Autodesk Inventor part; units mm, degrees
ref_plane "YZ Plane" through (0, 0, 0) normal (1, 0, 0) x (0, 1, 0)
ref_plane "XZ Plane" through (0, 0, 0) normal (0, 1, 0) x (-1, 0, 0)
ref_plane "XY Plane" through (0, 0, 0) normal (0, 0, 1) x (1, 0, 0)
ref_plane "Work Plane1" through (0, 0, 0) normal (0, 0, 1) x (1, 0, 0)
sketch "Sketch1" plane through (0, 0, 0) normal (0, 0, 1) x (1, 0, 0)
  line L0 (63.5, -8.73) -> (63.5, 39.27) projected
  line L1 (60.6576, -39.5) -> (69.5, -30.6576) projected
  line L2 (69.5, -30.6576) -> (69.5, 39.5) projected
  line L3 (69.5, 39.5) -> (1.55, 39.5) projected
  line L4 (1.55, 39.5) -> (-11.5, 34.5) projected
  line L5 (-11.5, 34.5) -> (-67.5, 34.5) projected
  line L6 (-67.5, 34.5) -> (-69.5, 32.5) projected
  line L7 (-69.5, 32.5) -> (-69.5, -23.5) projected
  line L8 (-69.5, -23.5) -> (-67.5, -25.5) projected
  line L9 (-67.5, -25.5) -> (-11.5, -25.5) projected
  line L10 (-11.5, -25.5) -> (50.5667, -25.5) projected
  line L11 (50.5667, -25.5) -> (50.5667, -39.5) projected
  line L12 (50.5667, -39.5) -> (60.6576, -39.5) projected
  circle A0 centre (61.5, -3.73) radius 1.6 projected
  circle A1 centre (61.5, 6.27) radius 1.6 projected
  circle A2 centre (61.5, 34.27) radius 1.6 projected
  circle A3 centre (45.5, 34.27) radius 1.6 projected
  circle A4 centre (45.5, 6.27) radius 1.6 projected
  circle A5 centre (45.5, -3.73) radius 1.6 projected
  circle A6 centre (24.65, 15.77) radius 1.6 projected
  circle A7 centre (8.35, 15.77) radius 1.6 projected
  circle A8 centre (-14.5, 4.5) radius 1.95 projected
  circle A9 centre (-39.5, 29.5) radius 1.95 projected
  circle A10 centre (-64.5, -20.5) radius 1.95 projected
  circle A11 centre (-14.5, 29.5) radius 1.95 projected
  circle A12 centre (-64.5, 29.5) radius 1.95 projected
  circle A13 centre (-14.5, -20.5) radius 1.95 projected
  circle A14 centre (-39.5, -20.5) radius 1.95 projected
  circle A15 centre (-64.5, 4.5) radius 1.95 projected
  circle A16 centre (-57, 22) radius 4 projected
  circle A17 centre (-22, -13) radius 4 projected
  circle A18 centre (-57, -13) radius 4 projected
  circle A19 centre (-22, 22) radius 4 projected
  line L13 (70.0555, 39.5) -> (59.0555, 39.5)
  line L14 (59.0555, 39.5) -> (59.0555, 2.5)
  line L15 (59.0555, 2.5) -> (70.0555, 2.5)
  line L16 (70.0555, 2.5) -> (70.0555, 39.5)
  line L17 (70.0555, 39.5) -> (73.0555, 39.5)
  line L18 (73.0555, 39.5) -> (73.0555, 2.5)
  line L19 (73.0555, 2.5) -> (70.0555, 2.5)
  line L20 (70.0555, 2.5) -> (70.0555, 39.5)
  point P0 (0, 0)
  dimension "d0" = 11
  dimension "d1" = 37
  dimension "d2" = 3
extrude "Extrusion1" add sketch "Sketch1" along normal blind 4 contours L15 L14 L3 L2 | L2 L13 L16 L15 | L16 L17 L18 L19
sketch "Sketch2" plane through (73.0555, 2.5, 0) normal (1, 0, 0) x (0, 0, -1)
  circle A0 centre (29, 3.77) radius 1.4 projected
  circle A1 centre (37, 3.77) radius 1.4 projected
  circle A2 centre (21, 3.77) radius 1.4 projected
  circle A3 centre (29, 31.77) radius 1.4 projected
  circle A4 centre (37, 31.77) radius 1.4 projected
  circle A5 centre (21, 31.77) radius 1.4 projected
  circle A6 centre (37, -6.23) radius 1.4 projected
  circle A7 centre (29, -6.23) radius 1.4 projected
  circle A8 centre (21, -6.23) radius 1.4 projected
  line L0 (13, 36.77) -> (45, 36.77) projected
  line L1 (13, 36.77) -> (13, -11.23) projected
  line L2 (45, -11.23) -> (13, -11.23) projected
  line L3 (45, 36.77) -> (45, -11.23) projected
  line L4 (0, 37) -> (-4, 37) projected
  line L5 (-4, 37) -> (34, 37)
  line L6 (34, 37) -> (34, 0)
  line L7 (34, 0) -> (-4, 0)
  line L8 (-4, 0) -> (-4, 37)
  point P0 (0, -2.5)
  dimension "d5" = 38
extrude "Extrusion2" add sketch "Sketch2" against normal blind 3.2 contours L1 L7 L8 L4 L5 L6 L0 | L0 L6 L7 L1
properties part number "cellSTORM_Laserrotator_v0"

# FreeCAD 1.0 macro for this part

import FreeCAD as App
import Part
import Sketcher

V = App.Vector


def add_polygon(sketch, points):
    """Adds a closed chain of lines whose ends are joined by coincident constraints."""
    first, n = sketch.GeometryCount, len(points)
    for a, b in zip(points, points[1:] + points[:1]):
        sketch.addGeometry(Part.LineSegment(App.Vector(*a, 0), App.Vector(*b, 0)), False)
    for i in range(n):
        sketch.addConstraint(Sketcher.Constraint("Coincident", first + i, 2, first + (i + 1) % n, 1))

doc = App.newDocument("Part")
body = doc.addObject("PartDesign::Body", "Body")

# Sketch on XY plane
sketch1 = body.newObject("Sketcher::SketchObject", "Sketch")
sketch1.AttachmentSupport = (doc.getObject("XY_Plane"), [""])
sketch1.MapMode = "FlatFace"
add_polygon(sketch1, [(73.0555, 2.5), (73.0555, 39.5), (59.0555, 39.5), (59.0555, 2.5)])  # lines 0-3
sketch1.addGeometry(Part.Circle(V(61.5, 6.27, 0), V(0, 0, 1), 1.6), False)  # 4
sketch1.addGeometry(Part.Circle(V(61.5, 34.27, 0), V(0, 0, 1), 1.6), False)  # 5
sketch1.addConstraint(Sketcher.Constraint("Vertical", 0))
sketch1.addConstraint(Sketcher.Constraint("Horizontal", 1))
sketch1.addConstraint(Sketcher.Constraint("Vertical", 2))
sketch1.addConstraint(Sketcher.Constraint("Horizontal", 3))
sketch1.addConstraint(Sketcher.Constraint("Equal", 4, 5))
sketch1.addConstraint(Sketcher.Constraint("Vertical", 4, 3, 5, 3))
sketch1.addConstraint(Sketcher.Constraint("DistanceY", 0, 1, 0, 2, 37.0))
sketch1.addConstraint(Sketcher.Constraint("Diameter", 4, 3.2))
sketch1.addConstraint(Sketcher.Constraint("DistanceX", 1, 2, 1, 1, 14.0))
sketch1.addConstraint(Sketcher.Constraint("DistanceY", 4, 3, 5, 3, 28.0))
sketch1.addConstraint(Sketcher.Constraint("DistanceX", -1, 1, 4, 3, 61.5))
sketch1.addConstraint(Sketcher.Constraint("DistanceY", -1, 1, 0, 2, 39.5))
sketch1.addConstraint(Sketcher.Constraint("DistanceY", -1, 1, 4, 3, 6.27))
sketch1.addConstraint(Sketcher.Constraint("DistanceX", -1, 1, 0, 2, 73.0555))
pad1 = body.newObject("PartDesign::Pad", "Pad")
pad1.Profile = sketch1
pad1.Length = 4

# Sketch on YZ plane
sketch2 = body.newObject("Sketcher::SketchObject", "Sketch001")
sketch2.AttachmentSupport = (doc.getObject("YZ_Plane"), [""])
sketch2.MapMode = "FlatFace"
sketch2.AttachmentOffset = App.Placement(V(0, 0, 73.0555), App.Rotation())
add_polygon(sketch2, [(2.5, 4), (2.5, -34), (39.5, -34), (39.5, 4)])  # lines 0-3
sketch2.addGeometry(Part.Circle(V(34.27, -21, 0), V(0, 0, 1), 1.4), False)  # 4
sketch2.addGeometry(Part.Circle(V(34.27, -29, 0), V(0, 0, 1), 1.4), False)  # 5
sketch2.addGeometry(Part.Circle(V(6.27, -21, 0), V(0, 0, 1), 1.4), False)  # 6
sketch2.addGeometry(Part.Circle(V(6.27, -29, 0), V(0, 0, 1), 1.4), False)  # 7
sketch2.addConstraint(Sketcher.Constraint("Vertical", 0))
sketch2.addConstraint(Sketcher.Constraint("Horizontal", 1))
sketch2.addConstraint(Sketcher.Constraint("Vertical", 2))
sketch2.addConstraint(Sketcher.Constraint("Horizontal", 3))
sketch2.addConstraint(Sketcher.Constraint("Equal", 4, 5))
sketch2.addConstraint(Sketcher.Constraint("Equal", 5, 6))
sketch2.addConstraint(Sketcher.Constraint("Equal", 6, 7))
sketch2.addConstraint(Sketcher.Constraint("Horizontal", 4, 3, 6, 3))
sketch2.addConstraint(Sketcher.Constraint("Horizontal", 5, 3, 7, 3))
sketch2.addConstraint(Sketcher.Constraint("Vertical", 4, 3, 5, 3))
sketch2.addConstraint(Sketcher.Constraint("Vertical", 6, 3, 7, 3))
sketch2.addConstraint(Sketcher.Constraint("DistanceY", 0, 2, 0, 1, 38.0))
sketch2.addConstraint(Sketcher.Constraint("Diameter", 4, 2.8))
sketch2.addConstraint(Sketcher.Constraint("DistanceX", 1, 1, 1, 2, 37.0))
sketch2.addConstraint(Sketcher.Constraint("DistanceY", 4, 3, -1, 1, 21.0))
sketch2.addConstraint(Sketcher.Constraint("DistanceY", 5, 3, -1, 1, 29.0))
sketch2.addConstraint(Sketcher.Constraint("DistanceY", 0, 2, -1, 1, 34.0))
sketch2.addConstraint(Sketcher.Constraint("DistanceX", 6, 3, 4, 3, 28.0))
sketch2.addConstraint(Sketcher.Constraint("DistanceX", -1, 1, 0, 2, 2.5))
sketch2.addConstraint(Sketcher.Constraint("DistanceX", -1, 1, 4, 3, 34.27))
pad2 = body.newObject("PartDesign::Pad", "Pad001")
pad2.Profile = sketch2
pad2.Length = 3.2
pad2.Reversed = True

doc.recompute()
